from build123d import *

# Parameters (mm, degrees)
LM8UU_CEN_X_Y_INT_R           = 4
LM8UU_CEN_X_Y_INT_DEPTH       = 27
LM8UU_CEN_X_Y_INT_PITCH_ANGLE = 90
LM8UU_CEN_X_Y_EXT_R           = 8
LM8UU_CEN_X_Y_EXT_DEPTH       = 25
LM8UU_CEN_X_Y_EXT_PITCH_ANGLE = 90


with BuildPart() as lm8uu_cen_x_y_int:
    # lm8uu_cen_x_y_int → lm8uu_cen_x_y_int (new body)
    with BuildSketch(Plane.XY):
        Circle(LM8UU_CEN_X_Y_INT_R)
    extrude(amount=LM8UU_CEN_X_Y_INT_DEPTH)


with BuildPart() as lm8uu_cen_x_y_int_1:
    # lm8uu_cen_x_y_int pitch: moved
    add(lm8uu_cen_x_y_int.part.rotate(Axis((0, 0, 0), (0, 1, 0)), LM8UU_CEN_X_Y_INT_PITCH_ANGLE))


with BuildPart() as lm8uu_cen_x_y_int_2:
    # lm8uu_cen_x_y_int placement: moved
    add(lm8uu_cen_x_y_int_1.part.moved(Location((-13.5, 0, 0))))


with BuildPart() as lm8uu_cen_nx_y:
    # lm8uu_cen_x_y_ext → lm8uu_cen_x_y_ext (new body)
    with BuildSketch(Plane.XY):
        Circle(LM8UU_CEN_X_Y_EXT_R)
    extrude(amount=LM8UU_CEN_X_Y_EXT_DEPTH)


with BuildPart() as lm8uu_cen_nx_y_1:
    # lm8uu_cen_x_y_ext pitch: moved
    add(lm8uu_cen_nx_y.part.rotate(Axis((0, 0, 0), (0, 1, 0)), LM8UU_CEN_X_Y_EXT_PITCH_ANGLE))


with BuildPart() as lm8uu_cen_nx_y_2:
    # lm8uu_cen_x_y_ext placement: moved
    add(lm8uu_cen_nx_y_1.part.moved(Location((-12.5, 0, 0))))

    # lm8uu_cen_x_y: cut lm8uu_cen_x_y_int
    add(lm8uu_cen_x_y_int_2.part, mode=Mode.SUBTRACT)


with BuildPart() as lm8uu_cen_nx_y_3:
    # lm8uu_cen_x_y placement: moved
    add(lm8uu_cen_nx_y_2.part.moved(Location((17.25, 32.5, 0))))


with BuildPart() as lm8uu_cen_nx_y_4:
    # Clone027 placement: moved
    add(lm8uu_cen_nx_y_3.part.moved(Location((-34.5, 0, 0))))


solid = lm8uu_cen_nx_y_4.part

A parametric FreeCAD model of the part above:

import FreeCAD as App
import Part
import Sketcher
from FreeCAD import Vector

doc = App.newDocument("Part")
body = doc.addObject("PartDesign::Body", "Body")

sketch1 = body.newObject("Sketcher::SketchObject", "Sketch")
sketch1.AttachmentSupport = (doc.getObject("XY_Plane"), [""])
sketch1.MapMode = "FlatFace"
sketch1.addGeometry(Part.Circle(Vector(0, 0, 0), Vector(0, 0, 1), 4), False)
sketch1.addConstraint([
    Sketcher.Constraint("Coincident", 0, 3, -1, 1),
    Sketcher.Constraint("Diameter", 0, 8.0),
])
pad1 = body.newObject("PartDesign::Pad", "Pad")
pad1.Profile = sketch1
pad1.Length = 27
body2 = doc.addObject("PartDesign::Body", "Body001")
doc.recompute()

body.Placement = App.Placement(Vector(0, 0, 0), App.Rotation(Vector(0, 1, 0), 90))
boolean = body2.newObject("PartDesign::Boolean", "Boolean")
boolean.Type = "Fuse"
boolean.addObjects([body])
body3 = doc.addObject("PartDesign::Body", "Body002")
doc.recompute()

body2.Placement = App.Placement(Vector(-13.5, 0, 0), App.Rotation(Vector(0, 0, 1), 0))
boolean2 = body3.newObject("PartDesign::Boolean", "Boolean001")
boolean2.Type = "Fuse"
boolean2.addObjects([body2])
body4 = doc.addObject("PartDesign::Body", "Body003")

sketch2 = body4.newObject("Sketcher::SketchObject", "Sketch001")
sketch2.AttachmentSupport = (doc.getObject("XY_Plane003"), [""])
sketch2.MapMode = "FlatFace"
sketch2.addGeometry(Part.Circle(Vector(0, 0, 0), Vector(0, 0, 1), 8), False)
sketch2.addConstraint([
    Sketcher.Constraint("Coincident", 0, 3, -1, 1),
    Sketcher.Constraint("Diameter", 0, 16.0),
])
pad2 = body4.newObject("PartDesign::Pad", "Pad001")
pad2.Profile = sketch2
pad2.Length = 25
body5 = doc.addObject("PartDesign::Body", "Body004")
doc.recompute()

body4.Placement = App.Placement(Vector(0, 0, 0), App.Rotation(Vector(0, 1, 0), 90))
boolean3 = body5.newObject("PartDesign::Boolean", "Boolean002")
boolean3.Type = "Fuse"
boolean3.addObjects([body4])
body6 = doc.addObject("PartDesign::Body", "Body005")
doc.recompute()

body5.Placement = App.Placement(Vector(-12.5, 0, 0), App.Rotation(Vector(0, 0, 1), 0))
boolean4 = body6.newObject("PartDesign::Boolean", "Boolean003")
boolean4.Type = "Fuse"
boolean4.addObjects([body5])
doc.recompute()

boolean5 = body6.newObject("PartDesign::Boolean", "Boolean004")
boolean5.Type = "Cut"
boolean5.addObjects([body3])
body7 = doc.addObject("PartDesign::Body", "Body006")
doc.recompute()

body6.Placement = App.Placement(Vector(17.25, 32.5, 0), App.Rotation(Vector(0, 0, 1), 0))
boolean6 = body7.newObject("PartDesign::Boolean", "Boolean005")
boolean6.Type = "Fuse"
boolean6.addObjects([body6])
body8 = doc.addObject("PartDesign::Body", "Body007")
doc.recompute()

body7.Placement = App.Placement(Vector(-34.5, 0, 0), App.Rotation(Vector(0, 0, 1), 0))
boolean7 = body8.newObject("PartDesign::Boolean", "Boolean006")
boolean7.Type = "Fuse"
boolean7.addObjects([body7])

doc.recompute()
